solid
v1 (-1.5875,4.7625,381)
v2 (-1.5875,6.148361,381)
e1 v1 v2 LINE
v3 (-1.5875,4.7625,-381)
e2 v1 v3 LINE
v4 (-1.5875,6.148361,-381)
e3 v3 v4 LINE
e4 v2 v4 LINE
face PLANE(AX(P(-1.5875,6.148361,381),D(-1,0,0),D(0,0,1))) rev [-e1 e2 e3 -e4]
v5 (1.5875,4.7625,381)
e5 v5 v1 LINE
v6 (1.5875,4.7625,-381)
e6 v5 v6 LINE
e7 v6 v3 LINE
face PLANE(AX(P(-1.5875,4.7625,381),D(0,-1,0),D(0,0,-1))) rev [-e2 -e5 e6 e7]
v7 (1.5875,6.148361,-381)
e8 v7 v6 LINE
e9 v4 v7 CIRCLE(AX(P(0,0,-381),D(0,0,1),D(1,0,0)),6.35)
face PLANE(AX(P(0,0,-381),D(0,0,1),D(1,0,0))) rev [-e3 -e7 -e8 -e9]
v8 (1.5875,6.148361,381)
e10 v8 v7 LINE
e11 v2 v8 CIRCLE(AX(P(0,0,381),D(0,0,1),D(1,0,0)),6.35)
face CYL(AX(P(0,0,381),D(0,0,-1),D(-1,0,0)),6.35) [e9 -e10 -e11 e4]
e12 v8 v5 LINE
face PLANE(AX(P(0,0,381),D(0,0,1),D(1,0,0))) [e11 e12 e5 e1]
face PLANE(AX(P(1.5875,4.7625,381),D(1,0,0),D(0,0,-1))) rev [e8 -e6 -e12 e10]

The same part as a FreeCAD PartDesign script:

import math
import FreeCAD as App
import Part
import Sketcher
from FreeCAD import Vector
Q = App.Units.Quantity

doc = App.newDocument("Part")
params = doc.addObject("Spreadsheet::Sheet", "Params")
for row, (alias, value) in enumerate([
    ("sketch1_radius", "0.25 in"),
    ("sketch1_width", "0.125 in"),
    ("pad1_length", "30 in"),
], start=1):
    params.set(f"A{row}", alias)
    params.set(f"B{row}", "=" + value)
    params.setAlias(f"B{row}", alias)

body = doc.addObject("PartDesign::Body", "Body")

# Sketch on XY plane
sketch1 = doc.addObject("Sketcher::SketchObject", "Sketch")
body.addObject(sketch1)
sketch1.AttachmentSupport = (doc.XY_Plane, [""])
sketch1.MapMode = "FlatFace"
sketch1.addGeometry([
    Part.LineSegment(Vector(-1.6, 4.8, 0), Vector(-1.6, 6.1, 0)),
    Part.ArcOfCircle(Part.Circle(Vector(0, 0, 0), Vector(0, 0, 1), 6.3), math.radians(104), math.radians(436)),
    Part.LineSegment(Vector(1.6, 6.1, 0), Vector(1.6, 4.8, 0)),
    Part.LineSegment(Vector(1.6, 4.8, 0), Vector(-1.6, 4.8, 0)),
], False)
sketch1.addConstraint([
    Sketcher.Constraint("Coincident", 0, 2, 1, 1),
    Sketcher.Constraint("Coincident", 1, 2, 2, 1),
    Sketcher.Constraint("Coincident", 2, 2, 3, 1),
    Sketcher.Constraint("Coincident", 3, 2, 0, 1),
    Sketcher.Constraint("Vertical", 0),
    Sketcher.Constraint("Vertical", 2),
    Sketcher.Constraint("Horizontal", 3),
    Sketcher.Constraint("Coincident", 1, 3, -1, 1),
    Sketcher.Constraint("Horizontal", 0, 2, 1, 2),
    Sketcher.Constraint("Radius", 1, Q("0.25 in")),
    Sketcher.Constraint("DistanceX", 3, 2, 3, 1, Q("0.125 in")),
    Sketcher.Constraint("DistanceY", -1, 1, 2, 2, Q("0.1875 in")),
])
sketch1.setExpression("Constraints[9]", "Params.sketch1_radius")
sketch1.setExpression("Constraints[10]", "Params.sketch1_width")
pad1 = doc.addObject("PartDesign::Pad", "Pad")
body.addObject(pad1)
pad1.Profile = sketch1
pad1.setExpression("Length", "Params.pad1_length")
pad1.Midplane = True

doc.recompute()
